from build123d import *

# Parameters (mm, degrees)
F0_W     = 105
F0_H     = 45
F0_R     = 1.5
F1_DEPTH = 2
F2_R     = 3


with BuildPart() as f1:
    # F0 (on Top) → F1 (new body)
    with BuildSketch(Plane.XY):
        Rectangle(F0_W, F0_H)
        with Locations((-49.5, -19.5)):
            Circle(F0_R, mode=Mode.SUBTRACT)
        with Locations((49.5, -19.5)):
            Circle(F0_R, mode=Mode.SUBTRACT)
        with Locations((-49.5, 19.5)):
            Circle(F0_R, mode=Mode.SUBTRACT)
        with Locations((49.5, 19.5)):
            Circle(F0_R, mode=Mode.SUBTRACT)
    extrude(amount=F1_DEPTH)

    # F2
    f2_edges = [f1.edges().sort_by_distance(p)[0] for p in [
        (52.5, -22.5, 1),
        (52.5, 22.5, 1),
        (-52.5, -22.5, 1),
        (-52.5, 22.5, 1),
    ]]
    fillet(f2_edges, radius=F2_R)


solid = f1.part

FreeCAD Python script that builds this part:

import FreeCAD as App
import Part
import Sketcher
from FreeCAD import Vector


def edges_at(feature, points):
    """Names of the edges that pass closest to the given points."""
    edges = feature.Shape.Edges
    near = lambda p: min(range(len(edges)), key=lambda i: edges[i].distToShape(Part.Vertex(*p))[0])
    return sorted({f"Edge{near(p) + 1}" for p in points})


def add_polygon(sketch, points):
    """Adds a closed chain of lines whose ends are joined by coincident constraints."""
    first, n = sketch.GeometryCount, len(points)
    for a, b in zip(points, points[1:] + points[:1]):
        sketch.addGeometry(Part.LineSegment(App.Vector(*a, 0), App.Vector(*b, 0)), False)
    for i in range(n):
        sketch.addConstraint(Sketcher.Constraint("Coincident", first + i, 2, first + (i + 1) % n, 1))

doc = App.newDocument("Part")
body = doc.addObject("PartDesign::Body", "Body")

sketch1 = body.newObject("Sketcher::SketchObject", "Sketch")
sketch1.AttachmentSupport = (doc.getObject("XY_Plane"), [""])
sketch1.MapMode = "FlatFace"
add_polygon(sketch1, [(-52.5, 22.5), (-52.5, -22.5), (52.5, -22.5), (52.5, 22.5)])
sketch1.addGeometry(Part.Circle(Vector(-49.5, -19.5, 0), Vector(0, 0, 1), 1.5), False)
sketch1.addGeometry(Part.Circle(Vector(49.5, -19.5, 0), Vector(0, 0, 1), 1.5), False)
sketch1.addGeometry(Part.Circle(Vector(-49.5, 19.5, 0), Vector(0, 0, 1), 1.5), False)
sketch1.addGeometry(Part.Circle(Vector(49.5, 19.5, 0), Vector(0, 0, 1), 1.5), False)
sketch1.addConstraint([
    Sketcher.Constraint("Vertical", 0),
    Sketcher.Constraint("Horizontal", 1),
    Sketcher.Constraint("Vertical", 2),
    Sketcher.Constraint("Horizontal", 3),
    Sketcher.Constraint("Equal", 4, 5),
    Sketcher.Constraint("Equal", 5, 6),
    Sketcher.Constraint("Equal", 6, 7),
    Sketcher.Constraint("Symmetric", 5, 3, 6, 3, -1, 1),
    Sketcher.Constraint("Symmetric", 4, 3, 7, 3, -1, 1),
    Sketcher.Constraint("Symmetric", 0, 2, 2, 2, -1, 1),
    Sketcher.Constraint("Symmetric", 4, 3, 5, 3, -2),
    Sketcher.Constraint("Diameter", 4, 3.0),
    Sketcher.Constraint("DistanceX", 1, 1, 1, 2, 105.0),
    Sketcher.Constraint("DistanceY", 0, 2, 0, 1, 45.0),
    Sketcher.Constraint("DistanceX", 4, 3, 5, 3, 99.0),
    Sketcher.Constraint("DistanceY", 4, 3, 6, 3, 39.0),
])
pad1 = body.newObject("PartDesign::Pad", "Pad")
pad1.Profile = sketch1
pad1.Length = 2
doc.recompute()

fillet = body.newObject("PartDesign::Fillet", "Fillet")
fillet.Base = (pad1, edges_at(pad1, [
    (52.5, -22.5, 1),
    (52.5, 22.5, 1),
    (-52.5, -22.5, 1),
    (-52.5, 22.5, 1),
]))
fillet.Radius = 3

doc.recompute()
